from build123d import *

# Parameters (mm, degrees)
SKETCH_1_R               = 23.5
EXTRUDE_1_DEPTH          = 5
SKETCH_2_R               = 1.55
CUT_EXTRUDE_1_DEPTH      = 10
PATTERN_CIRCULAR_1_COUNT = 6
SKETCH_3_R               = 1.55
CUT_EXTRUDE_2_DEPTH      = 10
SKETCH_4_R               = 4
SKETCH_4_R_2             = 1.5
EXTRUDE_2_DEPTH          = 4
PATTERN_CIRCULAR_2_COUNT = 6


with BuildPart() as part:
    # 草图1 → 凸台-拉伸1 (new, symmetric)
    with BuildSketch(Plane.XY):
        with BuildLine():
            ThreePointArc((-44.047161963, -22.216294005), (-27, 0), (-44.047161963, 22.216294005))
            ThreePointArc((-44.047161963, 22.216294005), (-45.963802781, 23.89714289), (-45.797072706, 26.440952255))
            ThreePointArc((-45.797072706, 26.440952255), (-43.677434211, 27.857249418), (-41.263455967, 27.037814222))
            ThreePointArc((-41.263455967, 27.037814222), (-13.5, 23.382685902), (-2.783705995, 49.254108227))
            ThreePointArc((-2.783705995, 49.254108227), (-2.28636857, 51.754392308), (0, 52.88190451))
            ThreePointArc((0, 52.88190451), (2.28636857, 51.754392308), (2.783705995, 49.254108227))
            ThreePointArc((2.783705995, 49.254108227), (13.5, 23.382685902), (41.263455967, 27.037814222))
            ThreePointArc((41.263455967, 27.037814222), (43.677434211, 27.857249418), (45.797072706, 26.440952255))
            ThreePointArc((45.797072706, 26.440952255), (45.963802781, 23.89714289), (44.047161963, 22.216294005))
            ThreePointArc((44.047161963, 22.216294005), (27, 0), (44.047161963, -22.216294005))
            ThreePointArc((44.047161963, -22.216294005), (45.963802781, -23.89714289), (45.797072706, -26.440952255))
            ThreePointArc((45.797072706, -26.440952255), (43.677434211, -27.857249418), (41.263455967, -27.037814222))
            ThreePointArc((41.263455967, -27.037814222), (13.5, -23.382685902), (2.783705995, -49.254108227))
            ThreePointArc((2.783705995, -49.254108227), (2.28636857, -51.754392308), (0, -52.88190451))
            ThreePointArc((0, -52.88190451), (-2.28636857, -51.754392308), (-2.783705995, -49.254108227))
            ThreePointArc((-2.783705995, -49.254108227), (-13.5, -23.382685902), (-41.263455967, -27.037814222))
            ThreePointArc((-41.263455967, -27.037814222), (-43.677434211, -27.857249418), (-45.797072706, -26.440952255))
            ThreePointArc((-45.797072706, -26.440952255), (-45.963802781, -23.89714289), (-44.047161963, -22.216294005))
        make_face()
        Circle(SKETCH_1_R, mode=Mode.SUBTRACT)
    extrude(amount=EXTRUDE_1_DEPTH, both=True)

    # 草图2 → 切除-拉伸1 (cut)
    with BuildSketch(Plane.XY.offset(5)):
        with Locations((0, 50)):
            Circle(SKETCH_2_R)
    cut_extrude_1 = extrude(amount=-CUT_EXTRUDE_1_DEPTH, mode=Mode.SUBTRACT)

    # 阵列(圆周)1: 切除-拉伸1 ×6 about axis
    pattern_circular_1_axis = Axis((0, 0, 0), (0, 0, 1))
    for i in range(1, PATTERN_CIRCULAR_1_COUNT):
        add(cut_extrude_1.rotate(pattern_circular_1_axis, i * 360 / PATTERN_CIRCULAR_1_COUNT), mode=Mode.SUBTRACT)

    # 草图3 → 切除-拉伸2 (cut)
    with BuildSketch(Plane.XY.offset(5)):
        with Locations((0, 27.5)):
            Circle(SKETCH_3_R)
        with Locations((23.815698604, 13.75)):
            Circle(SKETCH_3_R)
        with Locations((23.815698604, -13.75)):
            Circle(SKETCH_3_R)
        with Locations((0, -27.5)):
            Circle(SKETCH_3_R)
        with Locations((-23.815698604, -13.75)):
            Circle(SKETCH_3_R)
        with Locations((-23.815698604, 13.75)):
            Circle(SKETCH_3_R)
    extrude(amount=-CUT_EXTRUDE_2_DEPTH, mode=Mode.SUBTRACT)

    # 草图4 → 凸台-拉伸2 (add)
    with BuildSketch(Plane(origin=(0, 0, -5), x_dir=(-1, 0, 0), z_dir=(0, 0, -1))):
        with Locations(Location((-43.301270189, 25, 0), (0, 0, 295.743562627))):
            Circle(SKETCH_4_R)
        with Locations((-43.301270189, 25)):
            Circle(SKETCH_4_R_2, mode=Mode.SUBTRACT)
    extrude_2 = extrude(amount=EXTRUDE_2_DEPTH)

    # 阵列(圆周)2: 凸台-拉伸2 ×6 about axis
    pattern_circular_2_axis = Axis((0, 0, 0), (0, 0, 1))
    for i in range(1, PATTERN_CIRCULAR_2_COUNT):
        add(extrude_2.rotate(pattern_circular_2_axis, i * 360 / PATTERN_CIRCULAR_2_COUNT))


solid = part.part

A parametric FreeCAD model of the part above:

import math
import FreeCAD as App
import Part
import Sketcher
from FreeCAD import Vector
Q = App.Units.Quantity

doc = App.newDocument("Part")
body = doc.addObject("PartDesign::Body", "Body")

sketch1 = body.newObject("Sketcher::SketchObject", "Sketch")
sketch1.AttachmentSupport = (doc.getObject("XY_Plane"), [""])
sketch1.MapMode = "FlatFace"
sketch1.addGeometry(Part.ArcOfCircle(Part.Circle(Vector(-50, 0, 0), Vector(0, 0, 1), 23), math.radians(-75), math.radians(75)), False)
sketch1.addGeometry(Part.ArcOfCircle(Part.Circle(Vector(-43.3, -25, 0), Vector(0, 0, 1), 2.9), math.radians(105), math.radians(210)), False)
sketch1.addGeometry(Part.ArcOfCircle(Part.Circle(Vector(-43.3, -25, 0), Vector(0, 0, 1), 2.9), math.radians(-150), math.radians(-45)), False)
sketch1.addGeometry(Part.ArcOfCircle(Part.Circle(Vector(-25, -43.3, 0), Vector(0, 0, 1), 23), math.radians(-15), math.radians(135)), False)
sketch1.addGeometry(Part.ArcOfCircle(Part.Circle(Vector(0, -50, 0), Vector(0, 0, 1), 2.9), math.radians(165), math.radians(270)), False)
sketch1.addGeometry(Part.ArcOfCircle(Part.Circle(Vector(0, -50, 0), Vector(0, 0, 1), 2.9), math.radians(-90), math.radians(15)), False)
sketch1.addGeometry(Part.ArcOfCircle(Part.Circle(Vector(25, -43.3, 0), Vector(0, 0, 1), 23), math.radians(45), math.radians(195)), False)
sketch1.addGeometry(Part.ArcOfCircle(Part.Circle(Vector(43.3, -25, 0), Vector(0, 0, 1), 2.9), math.radians(-135), math.radians(-30)), False)
sketch1.addGeometry(Part.ArcOfCircle(Part.Circle(Vector(43.3, -25, 0), Vector(0, 0, 1), 2.9), math.radians(-30), math.radians(75)), False)
sketch1.addGeometry(Part.ArcOfCircle(Part.Circle(Vector(50, 0, 0), Vector(0, 0, 1), 23), math.radians(105), math.radians(255)), False)
sketch1.addGeometry(Part.ArcOfCircle(Part.Circle(Vector(43.3, 25, 0), Vector(0, 0, 1), 2.9), math.radians(-75), math.radians(30)), False)
sketch1.addGeometry(Part.ArcOfCircle(Part.Circle(Vector(43.3, 25, 0), Vector(0, 0, 1), 2.9), math.radians(30), math.radians(135)), False)
sketch1.addGeometry(Part.ArcOfCircle(Part.Circle(Vector(25, 43.3, 0), Vector(0, 0, 1), 23), math.radians(165), math.radians(315)), False)
sketch1.addGeometry(Part.ArcOfCircle(Part.Circle(Vector(0, 50, 0), Vector(0, 0, 1), 2.9), math.radians(-15), math.radians(90)), False)
sketch1.addGeometry(Part.ArcOfCircle(Part.Circle(Vector(0, 50, 0), Vector(0, 0, 1), 2.9), math.radians(90), math.radians(195)), False)
sketch1.addGeometry(Part.ArcOfCircle(Part.Circle(Vector(-25, 43.3, 0), Vector(0, 0, 1), 23), math.radians(-135), math.radians(15)), False)
sketch1.addGeometry(Part.ArcOfCircle(Part.Circle(Vector(-43.3, 25, 0), Vector(0, 0, 1), 2.9), math.radians(45), math.radians(150)), False)
sketch1.addGeometry(Part.ArcOfCircle(Part.Circle(Vector(-43.3, 25, 0), Vector(0, 0, 1), 2.9), math.radians(150), math.radians(255)), False)
sketch1.addGeometry(Part.Circle(Vector(0, 0, 0), Vector(0, 0, 1), 23.5), False)
sketch1.addConstraint(Sketcher.Constraint("Tangent", 0, 1, 1, 1))
sketch1.addConstraint(Sketcher.Constraint("Tangent", 1, 2, 2, 1))
sketch1.addConstraint(Sketcher.Constraint("Tangent", 2, 2, 3, 2))
sketch1.addConstraint(Sketcher.Constraint("Tangent", 3, 1, 4, 1))
sketch1.addConstraint(Sketcher.Constraint("Tangent", 4, 2, 5, 1))
sketch1.addConstraint(Sketcher.Constraint("Tangent", 5, 2, 6, 2))
sketch1.addConstraint(Sketcher.Constraint("Tangent", 6, 1, 7, 1))
sketch1.addConstraint(Sketcher.Constraint("Tangent", 7, 2, 8, 1))
sketch1.addConstraint(Sketcher.Constraint("Tangent", 8, 2, 9, 2))
sketch1.addConstraint(Sketcher.Constraint("Tangent", 9, 1, 10, 1))
sketch1.addConstraint(Sketcher.Constraint("Tangent", 10, 2, 11, 1))
sketch1.addConstraint(Sketcher.Constraint("Tangent", 11, 2, 12, 2))
sketch1.addConstraint(Sketcher.Constraint("Tangent", 12, 1, 13, 1))
sketch1.addConstraint(Sketcher.Constraint("Tangent", 13, 2, 14, 1))
sketch1.addConstraint(Sketcher.Constraint("Tangent", 14, 2, 15, 2))
sketch1.addConstraint(Sketcher.Constraint("Tangent", 15, 1, 16, 1))
sketch1.addConstraint(Sketcher.Constraint("Tangent", 16, 2, 17, 1))
sketch1.addConstraint(Sketcher.Constraint("Tangent", 17, 2, 0, 2))
sketch1.addConstraint(Sketcher.Constraint("Coincident", 18, 3, -1, 1))
sketch1.addConstraint(Sketcher.Constraint("Equal", 1, 2))
sketch1.addConstraint(Sketcher.Constraint("Equal", 0, 3))
sketch1.addConstraint(Sketcher.Constraint("Equal", 2, 4))
sketch1.addConstraint(Sketcher.Constraint("Equal", 4, 5))
sketch1.addConstraint(Sketcher.Constraint("Equal", 3, 6))
sketch1.addConstraint(Sketcher.Constraint("Equal", 5, 7))
sketch1.addConstraint(Sketcher.Constraint("Equal", 7, 8))
sketch1.addConstraint(Sketcher.Constraint("Equal", 6, 9))
sketch1.addConstraint(Sketcher.Constraint("Equal", 8, 10))
sketch1.addConstraint(Sketcher.Constraint("Equal", 10, 11))
sketch1.addConstraint(Sketcher.Constraint("Equal", 9, 12))
sketch1.addConstraint(Sketcher.Constraint("Equal", 11, 13))
sketch1.addConstraint(Sketcher.Constraint("Equal", 13, 14))
sketch1.addConstraint(Sketcher.Constraint("Equal", 12, 15))
sketch1.addConstraint(Sketcher.Constraint("Equal", 14, 16))
sketch1.addConstraint(Sketcher.Constraint("Equal", 16, 17))
sketch1.addConstraint(Sketcher.Constraint("Symmetric", 0, 3, 9, 3, -1, 1))
sketch1.addConstraint(Sketcher.Constraint("Symmetric", 3, 3, 12, 3, -1, 1))
sketch1.addConstraint(Sketcher.Constraint("Symmetric", 6, 3, 15, 3, -1, 1))
sketch1.addConstraint(Sketcher.Constraint("Symmetric", 3, 3, 6, 3, -2))
sketch1.addConstraint(Sketcher.Constraint("Symmetric", 1, 2, 7, 2, -2))
sketch1.addConstraint(Sketcher.Constraint("PointOnObject", 4, 2, -2))
sketch1.addConstraint(Sketcher.Constraint("PointOnObject", 13, 2, -2))
sketch1.addConstraint(Sketcher.Constraint("Horizontal", 10, 2, 16, 2))
sketch1.addConstraint(Sketcher.Constraint("Vertical", 7, 2, 10, 2))
sketch1.addConstraint(Sketcher.Constraint("Diameter", 18, Q("47 mm")))
sketch1.addConstraint(Sketcher.Constraint("Radius", 0, Q("23 mm")))
sketch1.addConstraint(Sketcher.Constraint("DistanceX", 0, 3, -1, 1, Q("50 mm")))
sketch1.addConstraint(Sketcher.Constraint("DistanceY", 1, 3, -1, 1, Q("25 mm")))
sketch1.addConstraint(Sketcher.Constraint("DistanceX", 3, 3, -1, 1, Q("25 mm")))
sketch1.addConstraint(Sketcher.Constraint("DistanceY", 4, 3, -1, 1, Q("50 mm")))
sketch1.addConstraint(Sketcher.Constraint("DistanceX", 1, 2, 0, 1, Q("1.749911 mm")))
pad1 = body.newObject("PartDesign::Pad", "Pad")
pad1.Profile = sketch1
pad1.Length = 10
pad1.Midplane = True

sketch2 = body.newObject("Sketcher::SketchObject", "Sketch001")
sketch2.AttachmentSupport = (doc.getObject("XY_Plane"), [""])
sketch2.MapMode = "FlatFace"
sketch2.AttachmentOffset = App.Placement(Vector(0, 0, 5), App.Rotation())
sketch2.addGeometry(Part.Circle(Vector(0, 50, 0), Vector(0, 0, 1), 1.6), False)
sketch2.addConstraint(Sketcher.Constraint("PointOnObject", 0, 3, -2))
sketch2.addConstraint(Sketcher.Constraint("Diameter", 0, Q("3.1 mm")))
sketch2.addConstraint(Sketcher.Constraint("DistanceY", -1, 1, 0, 3, Q("50 mm")))
pocket1 = body.newObject("PartDesign::Pocket", "Pocket")
pocket1.Profile = sketch2
pocket1.Length = 10
doc.recompute()

polarpattern = body.newObject("PartDesign::PolarPattern", "PolarPattern")
polarpattern.Originals = [pocket1]
polarpattern.Axis = (doc.getObject("Z_Axis"), [""])
polarpattern.Angle = 360
polarpattern.Occurrences = 6
body.Tip = polarpattern

sketch3 = body.newObject("Sketcher::SketchObject", "Sketch002")
sketch3.AttachmentSupport = (doc.getObject("XY_Plane"), [""])
sketch3.MapMode = "FlatFace"
sketch3.AttachmentOffset = App.Placement(Vector(0, 0, 5), App.Rotation())
sketch3.addGeometry(Part.Circle(Vector(0, 27.5, 0), Vector(0, 0, 1), 1.6), False)
sketch3.addGeometry(Part.Circle(Vector(23.8, 13.8, 0), Vector(0, 0, 1), 1.6), False)
sketch3.addGeometry(Part.Circle(Vector(23.8, -13.8, 0), Vector(0, 0, 1), 1.6), False)
sketch3.addGeometry(Part.Circle(Vector(0, -27.5, 0), Vector(0, 0, 1), 1.6), False)
sketch3.addGeometry(Part.Circle(Vector(-23.8, -13.8, 0), Vector(0, 0, 1), 1.6), False)
sketch3.addGeometry(Part.Circle(Vector(-23.8, 13.8, 0), Vector(0, 0, 1), 1.6), False)
sketch3.addConstraint(Sketcher.Constraint("Equal", 0, 1))
sketch3.addConstraint(Sketcher.Constraint("Equal", 1, 2))
sketch3.addConstraint(Sketcher.Constraint("Equal", 2, 3))
sketch3.addConstraint(Sketcher.Constraint("Equal", 3, 4))
sketch3.addConstraint(Sketcher.Constraint("Equal", 4, 5))
sketch3.addConstraint(Sketcher.Constraint("Symmetric", 0, 3, 3, 3, -1, 1))
sketch3.addConstraint(Sketcher.Constraint("Symmetric", 1, 3, 4, 3, -1, 1))
sketch3.addConstraint(Sketcher.Constraint("Symmetric", 2, 3, 5, 3, -1, 1))
sketch3.addConstraint(Sketcher.Constraint("Symmetric", 2, 3, 4, 3, -2))
sketch3.addConstraint(Sketcher.Constraint("PointOnObject", 0, 3, -2))
sketch3.addConstraint(Sketcher.Constraint("Diameter", 0, Q("3.1 mm")))
sketch3.addConstraint(Sketcher.Constraint("DistanceY", 3, 3, 0, 3, Q("55 mm")))
sketch3.addConstraint(Sketcher.Constraint("DistanceY", 2, 3, 1, 3, Q("27.5 mm")))
sketch3.addConstraint(Sketcher.Constraint("DistanceX", -1, 1, 1, 3, Q("23.815699 mm")))
pocket2 = body.newObject("PartDesign::Pocket", "Pocket001")
pocket2.Profile = sketch3
pocket2.Length = 10

sketch4 = body.newObject("Sketcher::SketchObject", "Sketch003")
sketch4.AttachmentSupport = (doc.getObject("XY_Plane"), [""])
sketch4.MapMode = "FlatFace"
sketch4.AttachmentOffset = App.Placement(Vector(0, 0, -5), App.Rotation())
sketch4.addGeometry(Part.Circle(Vector(43.3, 25, 0), Vector(0, 0, 1), 4), False)
sketch4.addGeometry(Part.Circle(Vector(43.3, 25, 0), Vector(0, 0, 1), 1.5), False)
sketch4.addConstraint(Sketcher.Constraint("Coincident", 1, 3, 0, 3))
sketch4.addConstraint(Sketcher.Constraint("Diameter", 0, Q("8 mm")))
sketch4.addConstraint(Sketcher.Constraint("Diameter", 1, Q("3 mm")))
sketch4.addConstraint(Sketcher.Constraint("DistanceY", -1, 1, 0, 3, Q("25 mm")))
sketch4.addConstraint(Sketcher.Constraint("DistanceX", -1, 1, 0, 3, Q("43.30127 mm")))
pad2 = body.newObject("PartDesign::Pad", "Pad001")
pad2.Profile = sketch4
pad2.Length = 4
pad2.Reversed = True
doc.recompute()

polarpattern2 = body.newObject("PartDesign::PolarPattern", "PolarPattern001")
polarpattern2.Originals = [pad2]
polarpattern2.Axis = (doc.getObject("Z_Axis"), [""])
polarpattern2.Angle = 360
polarpattern2.Occurrences = 6
body.Tip = polarpattern2

doc.recompute()
